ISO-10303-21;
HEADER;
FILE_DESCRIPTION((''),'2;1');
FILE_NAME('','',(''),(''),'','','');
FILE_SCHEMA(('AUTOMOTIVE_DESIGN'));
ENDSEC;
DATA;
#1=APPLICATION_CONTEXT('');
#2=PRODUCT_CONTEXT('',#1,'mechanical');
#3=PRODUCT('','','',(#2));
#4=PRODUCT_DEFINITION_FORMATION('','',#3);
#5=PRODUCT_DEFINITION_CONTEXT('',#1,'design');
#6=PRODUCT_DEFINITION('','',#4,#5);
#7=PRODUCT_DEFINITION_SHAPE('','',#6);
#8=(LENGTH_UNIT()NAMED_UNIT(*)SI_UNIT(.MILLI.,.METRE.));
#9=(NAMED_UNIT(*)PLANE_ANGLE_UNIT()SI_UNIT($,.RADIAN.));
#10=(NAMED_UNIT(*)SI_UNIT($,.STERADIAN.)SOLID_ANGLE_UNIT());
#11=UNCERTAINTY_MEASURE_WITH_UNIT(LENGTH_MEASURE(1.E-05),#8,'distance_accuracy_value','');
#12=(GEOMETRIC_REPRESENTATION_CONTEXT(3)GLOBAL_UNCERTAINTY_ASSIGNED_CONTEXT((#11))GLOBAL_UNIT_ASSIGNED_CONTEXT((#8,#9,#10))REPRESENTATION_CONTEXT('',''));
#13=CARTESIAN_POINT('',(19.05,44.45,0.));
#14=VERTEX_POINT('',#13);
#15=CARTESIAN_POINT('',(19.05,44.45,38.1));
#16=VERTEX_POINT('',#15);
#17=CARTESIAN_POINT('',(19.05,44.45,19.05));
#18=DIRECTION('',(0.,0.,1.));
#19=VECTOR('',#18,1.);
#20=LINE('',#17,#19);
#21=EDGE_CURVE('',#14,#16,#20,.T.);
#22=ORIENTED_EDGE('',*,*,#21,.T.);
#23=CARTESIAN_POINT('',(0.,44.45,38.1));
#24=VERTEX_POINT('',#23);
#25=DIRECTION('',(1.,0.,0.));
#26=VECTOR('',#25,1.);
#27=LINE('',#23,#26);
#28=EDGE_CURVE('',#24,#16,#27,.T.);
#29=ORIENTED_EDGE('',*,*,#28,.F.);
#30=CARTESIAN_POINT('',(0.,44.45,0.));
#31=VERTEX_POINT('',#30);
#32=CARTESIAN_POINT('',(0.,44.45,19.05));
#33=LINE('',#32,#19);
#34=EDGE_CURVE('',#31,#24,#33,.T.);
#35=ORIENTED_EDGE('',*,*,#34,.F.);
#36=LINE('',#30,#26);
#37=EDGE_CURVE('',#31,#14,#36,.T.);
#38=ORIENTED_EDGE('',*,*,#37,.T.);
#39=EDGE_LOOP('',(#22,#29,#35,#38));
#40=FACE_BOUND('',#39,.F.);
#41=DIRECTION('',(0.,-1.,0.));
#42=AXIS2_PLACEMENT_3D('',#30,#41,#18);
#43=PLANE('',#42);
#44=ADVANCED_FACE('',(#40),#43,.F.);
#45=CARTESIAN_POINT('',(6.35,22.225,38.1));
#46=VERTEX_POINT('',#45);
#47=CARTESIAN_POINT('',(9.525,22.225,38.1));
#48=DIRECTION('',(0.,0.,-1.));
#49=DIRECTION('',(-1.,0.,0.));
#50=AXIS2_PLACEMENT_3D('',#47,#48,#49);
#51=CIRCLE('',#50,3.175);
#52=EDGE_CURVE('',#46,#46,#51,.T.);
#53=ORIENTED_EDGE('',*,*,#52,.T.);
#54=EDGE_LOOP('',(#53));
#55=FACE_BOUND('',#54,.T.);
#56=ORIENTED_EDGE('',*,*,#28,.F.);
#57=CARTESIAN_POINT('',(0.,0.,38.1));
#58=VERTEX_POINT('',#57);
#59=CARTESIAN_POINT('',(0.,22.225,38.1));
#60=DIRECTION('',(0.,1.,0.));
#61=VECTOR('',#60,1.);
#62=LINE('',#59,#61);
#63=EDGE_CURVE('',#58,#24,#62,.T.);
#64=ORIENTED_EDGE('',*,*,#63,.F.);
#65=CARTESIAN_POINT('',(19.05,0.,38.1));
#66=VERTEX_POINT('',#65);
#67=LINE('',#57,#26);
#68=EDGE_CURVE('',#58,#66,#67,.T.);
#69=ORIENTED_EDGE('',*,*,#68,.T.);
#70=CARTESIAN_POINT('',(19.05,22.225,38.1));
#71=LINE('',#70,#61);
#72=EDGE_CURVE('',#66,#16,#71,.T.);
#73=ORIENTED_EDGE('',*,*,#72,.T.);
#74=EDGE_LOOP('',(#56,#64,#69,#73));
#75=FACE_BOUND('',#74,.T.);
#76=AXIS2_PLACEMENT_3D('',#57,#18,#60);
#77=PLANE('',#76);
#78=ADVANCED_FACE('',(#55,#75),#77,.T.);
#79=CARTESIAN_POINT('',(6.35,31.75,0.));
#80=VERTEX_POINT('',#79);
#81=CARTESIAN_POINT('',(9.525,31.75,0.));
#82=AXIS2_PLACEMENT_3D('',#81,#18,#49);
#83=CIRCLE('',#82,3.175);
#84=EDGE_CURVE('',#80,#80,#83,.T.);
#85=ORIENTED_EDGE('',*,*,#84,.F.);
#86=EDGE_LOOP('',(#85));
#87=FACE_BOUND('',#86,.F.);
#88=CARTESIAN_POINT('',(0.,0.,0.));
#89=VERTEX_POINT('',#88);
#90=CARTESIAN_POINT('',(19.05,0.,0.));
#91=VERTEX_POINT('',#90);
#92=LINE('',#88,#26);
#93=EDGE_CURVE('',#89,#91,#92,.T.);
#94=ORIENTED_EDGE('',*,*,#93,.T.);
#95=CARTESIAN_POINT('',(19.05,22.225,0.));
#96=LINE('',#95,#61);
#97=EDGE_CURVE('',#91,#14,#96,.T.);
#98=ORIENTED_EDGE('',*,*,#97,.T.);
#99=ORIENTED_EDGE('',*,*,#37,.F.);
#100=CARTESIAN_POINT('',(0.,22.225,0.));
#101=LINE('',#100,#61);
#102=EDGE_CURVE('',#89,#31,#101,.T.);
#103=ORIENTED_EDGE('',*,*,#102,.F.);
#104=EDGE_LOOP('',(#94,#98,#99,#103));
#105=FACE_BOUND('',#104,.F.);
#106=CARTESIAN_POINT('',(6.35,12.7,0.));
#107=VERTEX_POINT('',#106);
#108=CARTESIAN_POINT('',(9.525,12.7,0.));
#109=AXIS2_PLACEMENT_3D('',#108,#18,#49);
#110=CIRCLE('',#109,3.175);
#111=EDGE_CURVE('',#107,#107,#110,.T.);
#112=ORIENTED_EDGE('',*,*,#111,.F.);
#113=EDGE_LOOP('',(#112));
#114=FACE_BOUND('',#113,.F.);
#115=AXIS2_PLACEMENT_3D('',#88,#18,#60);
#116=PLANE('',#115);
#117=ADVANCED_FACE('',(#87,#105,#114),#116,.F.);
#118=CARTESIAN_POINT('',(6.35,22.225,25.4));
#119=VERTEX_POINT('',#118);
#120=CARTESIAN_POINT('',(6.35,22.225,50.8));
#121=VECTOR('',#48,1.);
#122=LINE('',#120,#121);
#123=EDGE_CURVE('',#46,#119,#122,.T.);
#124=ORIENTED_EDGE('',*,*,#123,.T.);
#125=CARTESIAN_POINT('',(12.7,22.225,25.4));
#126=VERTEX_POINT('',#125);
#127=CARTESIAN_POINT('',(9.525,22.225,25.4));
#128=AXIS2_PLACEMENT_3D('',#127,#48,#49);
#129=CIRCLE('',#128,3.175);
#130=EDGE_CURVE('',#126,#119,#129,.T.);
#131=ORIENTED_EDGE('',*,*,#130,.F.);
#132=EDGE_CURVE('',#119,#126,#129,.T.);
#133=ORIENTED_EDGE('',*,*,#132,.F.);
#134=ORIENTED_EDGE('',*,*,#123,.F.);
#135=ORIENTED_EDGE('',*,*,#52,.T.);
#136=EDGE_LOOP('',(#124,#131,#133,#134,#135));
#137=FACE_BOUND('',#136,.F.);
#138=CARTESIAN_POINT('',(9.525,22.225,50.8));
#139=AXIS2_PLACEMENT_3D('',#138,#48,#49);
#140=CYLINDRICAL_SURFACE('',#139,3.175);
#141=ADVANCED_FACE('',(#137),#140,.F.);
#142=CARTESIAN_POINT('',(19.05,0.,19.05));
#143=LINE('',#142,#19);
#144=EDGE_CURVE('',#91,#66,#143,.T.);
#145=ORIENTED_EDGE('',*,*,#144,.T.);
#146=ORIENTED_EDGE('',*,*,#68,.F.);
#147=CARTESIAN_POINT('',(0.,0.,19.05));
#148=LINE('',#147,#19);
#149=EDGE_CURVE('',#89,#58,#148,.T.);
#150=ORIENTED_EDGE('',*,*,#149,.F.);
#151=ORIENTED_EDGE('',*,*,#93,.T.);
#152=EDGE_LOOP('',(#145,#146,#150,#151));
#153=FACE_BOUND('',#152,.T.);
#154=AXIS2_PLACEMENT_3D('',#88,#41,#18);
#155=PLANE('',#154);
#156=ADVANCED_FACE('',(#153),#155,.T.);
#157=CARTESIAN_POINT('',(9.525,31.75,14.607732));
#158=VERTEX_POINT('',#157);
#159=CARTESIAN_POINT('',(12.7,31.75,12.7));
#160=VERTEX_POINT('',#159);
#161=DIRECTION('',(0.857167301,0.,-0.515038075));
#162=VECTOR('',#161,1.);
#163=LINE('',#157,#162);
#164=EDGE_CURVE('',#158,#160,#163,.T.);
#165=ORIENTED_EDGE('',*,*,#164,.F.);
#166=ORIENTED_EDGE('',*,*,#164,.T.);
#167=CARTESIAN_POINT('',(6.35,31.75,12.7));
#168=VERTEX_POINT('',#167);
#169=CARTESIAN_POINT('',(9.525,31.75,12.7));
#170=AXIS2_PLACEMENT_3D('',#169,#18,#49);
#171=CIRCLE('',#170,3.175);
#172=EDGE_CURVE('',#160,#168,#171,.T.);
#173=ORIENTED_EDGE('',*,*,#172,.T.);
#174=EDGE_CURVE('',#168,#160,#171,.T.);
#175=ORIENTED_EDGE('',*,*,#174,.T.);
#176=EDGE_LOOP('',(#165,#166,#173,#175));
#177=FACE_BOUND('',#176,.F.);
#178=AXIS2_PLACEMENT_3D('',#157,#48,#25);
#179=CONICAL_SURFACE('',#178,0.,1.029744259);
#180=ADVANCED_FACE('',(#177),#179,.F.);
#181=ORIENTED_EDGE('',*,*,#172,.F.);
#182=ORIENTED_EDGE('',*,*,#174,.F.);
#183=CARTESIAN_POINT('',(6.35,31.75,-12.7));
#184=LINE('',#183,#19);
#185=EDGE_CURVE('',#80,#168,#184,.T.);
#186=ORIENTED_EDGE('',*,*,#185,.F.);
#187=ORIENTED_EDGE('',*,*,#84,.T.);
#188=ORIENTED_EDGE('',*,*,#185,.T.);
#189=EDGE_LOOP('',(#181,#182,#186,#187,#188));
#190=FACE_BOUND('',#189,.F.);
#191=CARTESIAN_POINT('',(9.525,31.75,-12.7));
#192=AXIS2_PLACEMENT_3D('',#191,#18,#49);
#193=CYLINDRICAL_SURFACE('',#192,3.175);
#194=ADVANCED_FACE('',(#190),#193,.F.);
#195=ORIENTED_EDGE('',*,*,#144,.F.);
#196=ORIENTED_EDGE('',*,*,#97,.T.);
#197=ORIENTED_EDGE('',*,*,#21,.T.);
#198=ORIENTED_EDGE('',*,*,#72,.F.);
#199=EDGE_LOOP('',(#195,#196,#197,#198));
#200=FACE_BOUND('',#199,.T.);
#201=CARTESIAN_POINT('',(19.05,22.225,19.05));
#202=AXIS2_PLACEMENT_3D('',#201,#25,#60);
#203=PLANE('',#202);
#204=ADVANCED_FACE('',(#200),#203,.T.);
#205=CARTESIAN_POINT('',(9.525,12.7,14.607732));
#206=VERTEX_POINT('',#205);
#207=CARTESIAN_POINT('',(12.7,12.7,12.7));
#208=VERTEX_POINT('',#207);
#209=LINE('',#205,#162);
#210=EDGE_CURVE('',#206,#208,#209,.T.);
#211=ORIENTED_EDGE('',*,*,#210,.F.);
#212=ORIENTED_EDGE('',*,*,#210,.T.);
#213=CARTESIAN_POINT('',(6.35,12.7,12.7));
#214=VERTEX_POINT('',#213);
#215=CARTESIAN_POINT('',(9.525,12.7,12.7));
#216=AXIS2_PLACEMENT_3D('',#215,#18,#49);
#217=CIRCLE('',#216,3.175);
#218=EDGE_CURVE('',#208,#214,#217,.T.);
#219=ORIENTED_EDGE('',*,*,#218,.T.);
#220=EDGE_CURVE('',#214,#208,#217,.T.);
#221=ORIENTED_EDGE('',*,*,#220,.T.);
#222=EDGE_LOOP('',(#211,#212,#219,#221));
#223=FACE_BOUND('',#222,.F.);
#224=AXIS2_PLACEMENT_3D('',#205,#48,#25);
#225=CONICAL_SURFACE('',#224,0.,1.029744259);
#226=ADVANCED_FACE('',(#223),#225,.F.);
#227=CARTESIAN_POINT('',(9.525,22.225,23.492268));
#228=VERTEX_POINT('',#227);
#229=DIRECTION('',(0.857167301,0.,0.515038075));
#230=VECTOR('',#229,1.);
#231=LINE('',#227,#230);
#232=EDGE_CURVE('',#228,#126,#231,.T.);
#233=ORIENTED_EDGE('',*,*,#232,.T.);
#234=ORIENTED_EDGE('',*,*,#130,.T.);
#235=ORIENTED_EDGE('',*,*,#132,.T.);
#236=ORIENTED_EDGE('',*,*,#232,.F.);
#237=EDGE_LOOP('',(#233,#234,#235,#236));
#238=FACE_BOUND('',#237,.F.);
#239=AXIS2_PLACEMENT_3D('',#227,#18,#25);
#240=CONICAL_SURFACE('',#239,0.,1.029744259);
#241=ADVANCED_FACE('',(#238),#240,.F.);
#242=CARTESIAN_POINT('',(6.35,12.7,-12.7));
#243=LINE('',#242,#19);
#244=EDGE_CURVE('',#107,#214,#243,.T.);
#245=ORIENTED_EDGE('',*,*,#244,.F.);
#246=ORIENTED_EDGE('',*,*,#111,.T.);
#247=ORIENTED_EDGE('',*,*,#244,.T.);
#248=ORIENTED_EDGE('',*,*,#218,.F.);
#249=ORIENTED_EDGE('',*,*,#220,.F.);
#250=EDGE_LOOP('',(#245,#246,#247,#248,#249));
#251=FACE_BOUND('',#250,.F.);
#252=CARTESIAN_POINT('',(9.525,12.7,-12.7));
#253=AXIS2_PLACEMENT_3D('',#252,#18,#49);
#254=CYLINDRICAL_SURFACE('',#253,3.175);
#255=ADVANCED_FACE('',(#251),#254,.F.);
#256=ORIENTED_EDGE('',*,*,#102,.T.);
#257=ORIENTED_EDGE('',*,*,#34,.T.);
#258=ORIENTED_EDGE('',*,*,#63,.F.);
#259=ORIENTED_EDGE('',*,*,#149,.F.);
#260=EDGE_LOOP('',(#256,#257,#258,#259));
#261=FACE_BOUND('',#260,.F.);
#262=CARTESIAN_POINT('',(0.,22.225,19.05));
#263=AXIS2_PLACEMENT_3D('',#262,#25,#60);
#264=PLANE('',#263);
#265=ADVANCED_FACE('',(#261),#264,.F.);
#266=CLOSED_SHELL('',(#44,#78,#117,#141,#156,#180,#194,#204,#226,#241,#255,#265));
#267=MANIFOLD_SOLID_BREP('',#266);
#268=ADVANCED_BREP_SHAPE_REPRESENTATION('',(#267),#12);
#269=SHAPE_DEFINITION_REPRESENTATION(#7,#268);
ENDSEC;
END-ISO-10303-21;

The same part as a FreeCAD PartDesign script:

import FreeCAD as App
import Part
import Sketcher
from FreeCAD import Vector
Q = App.Units.Quantity

doc = App.newDocument("Part")
body = doc.addObject("PartDesign::Body", "Body")

# Sketch on YZ plane
sketch1 = body.newObject("Sketcher::SketchObject", "Sketch")
sketch1.AttachmentSupport = (doc.getObject("YZ_Plane"), [""])
sketch1.MapMode = "FlatFace"
sketch1.addGeometry(Part.LineSegment(Vector(0, 38, 0), Vector(0, 0, 0)), False)
sketch1.addGeometry(Part.LineSegment(Vector(0, 0, 0), Vector(44, 0, 0)), False)
sketch1.addGeometry(Part.LineSegment(Vector(44, 0, 0), Vector(44, 38, 0)), False)
sketch1.addGeometry(Part.LineSegment(Vector(44, 38, 0), Vector(0, 38, 0)), False)
sketch1.addConstraint(Sketcher.Constraint("Coincident", 0, 2, 1, 1))
sketch1.addConstraint(Sketcher.Constraint("Coincident", 1, 2, 2, 1))
sketch1.addConstraint(Sketcher.Constraint("Coincident", 2, 2, 3, 1))
sketch1.addConstraint(Sketcher.Constraint("Coincident", 3, 2, 0, 1))
sketch1.addConstraint(Sketcher.Constraint("Vertical", 0))
sketch1.addConstraint(Sketcher.Constraint("Horizontal", 1))
sketch1.addConstraint(Sketcher.Constraint("Vertical", 2))
sketch1.addConstraint(Sketcher.Constraint("Horizontal", 3))
sketch1.addConstraint(Sketcher.Constraint("Coincident", 0, 2, -1, 1))
sketch1.addConstraint(Sketcher.Constraint("DistanceY", 0, 2, 0, 1, Q("1.5 in")))
sketch1.addConstraint(Sketcher.Constraint("DistanceX", 1, 1, 1, 2, Q("1.75 in")))
pad1 = body.newObject("PartDesign::Pad", "Pad")
pad1.Profile = sketch1
pad1.Length = Q("0.75 in")

# Sketch on XY plane
sketch2 = body.newObject("Sketcher::SketchObject", "Sketch001")
sketch2.AttachmentSupport = (doc.getObject("XY_Plane"), [""])
sketch2.MapMode = "FlatFace"
sketch2.AttachmentOffset = App.Placement(Vector(0, 0, 1.5 * 25.4), App.Rotation())
sketch2.addGeometry(Part.Circle(Vector(9.5, 22.2, 0), Vector(0, 0, 1), 3.2), False)
sketch2.addConstraint(Sketcher.Constraint("Diameter", 0, Q("0.25 in")))
sketch2.addConstraint(Sketcher.Constraint("DistanceX", -1, 1, 0, 3, Q("0.375 in")))
sketch2.addConstraint(Sketcher.Constraint("DistanceY", -1, 1, 0, 3, Q("0.875 in")))
doc.recompute()
hole = body.newObject("PartDesign::Hole", "Hole")
hole.Profile = sketch2
hole.ThreadType = "None"
hole.Diameter = Q("0.25 in")
hole.DepthType = "Dimension"
hole.Depth = Q("0.5 in")
hole.DrillPoint = "Angled"
hole.DrillPointAngle = 118

# Sketch on XY plane
sketch3 = body.newObject("Sketcher::SketchObject", "Sketch002")
sketch3.AttachmentSupport = (doc.getObject("XY_Plane"), [""])
sketch3.MapMode = "FlatFace"
sketch3.addGeometry(Part.Circle(Vector(9.5, 12.7, 0), Vector(0, 0, 1), 3.2), False)
sketch3.addGeometry(Part.Circle(Vector(9.5, 31.8, 0), Vector(0, 0, 1), 3.2), False)
sketch3.addConstraint(Sketcher.Constraint("Equal", 0, 1))
sketch3.addConstraint(Sketcher.Constraint("Vertical", 0, 3, 1, 3))
sketch3.addConstraint(Sketcher.Constraint("Diameter", 0, Q("0.25 in")))
sketch3.addConstraint(Sketcher.Constraint("DistanceY", -1, 1, 0, 3, Q("0.5 in")))
sketch3.addConstraint(Sketcher.Constraint("DistanceY", -1, 1, 1, 3, Q("1.25 in")))
sketch3.addConstraint(Sketcher.Constraint("DistanceX", -1, 1, 0, 3, Q("0.375 in")))
doc.recompute()
hole2 = body.newObject("PartDesign::Hole", "Hole001")
hole2.Profile = sketch3
hole2.ThreadType = "None"
hole2.Diameter = Q("0.25 in")
hole2.DepthType = "Dimension"
hole2.Depth = Q("0.5 in")
hole2.DrillPoint = "Angled"
hole2.DrillPointAngle = 118
hole2.Reversed = True

doc.recompute()
